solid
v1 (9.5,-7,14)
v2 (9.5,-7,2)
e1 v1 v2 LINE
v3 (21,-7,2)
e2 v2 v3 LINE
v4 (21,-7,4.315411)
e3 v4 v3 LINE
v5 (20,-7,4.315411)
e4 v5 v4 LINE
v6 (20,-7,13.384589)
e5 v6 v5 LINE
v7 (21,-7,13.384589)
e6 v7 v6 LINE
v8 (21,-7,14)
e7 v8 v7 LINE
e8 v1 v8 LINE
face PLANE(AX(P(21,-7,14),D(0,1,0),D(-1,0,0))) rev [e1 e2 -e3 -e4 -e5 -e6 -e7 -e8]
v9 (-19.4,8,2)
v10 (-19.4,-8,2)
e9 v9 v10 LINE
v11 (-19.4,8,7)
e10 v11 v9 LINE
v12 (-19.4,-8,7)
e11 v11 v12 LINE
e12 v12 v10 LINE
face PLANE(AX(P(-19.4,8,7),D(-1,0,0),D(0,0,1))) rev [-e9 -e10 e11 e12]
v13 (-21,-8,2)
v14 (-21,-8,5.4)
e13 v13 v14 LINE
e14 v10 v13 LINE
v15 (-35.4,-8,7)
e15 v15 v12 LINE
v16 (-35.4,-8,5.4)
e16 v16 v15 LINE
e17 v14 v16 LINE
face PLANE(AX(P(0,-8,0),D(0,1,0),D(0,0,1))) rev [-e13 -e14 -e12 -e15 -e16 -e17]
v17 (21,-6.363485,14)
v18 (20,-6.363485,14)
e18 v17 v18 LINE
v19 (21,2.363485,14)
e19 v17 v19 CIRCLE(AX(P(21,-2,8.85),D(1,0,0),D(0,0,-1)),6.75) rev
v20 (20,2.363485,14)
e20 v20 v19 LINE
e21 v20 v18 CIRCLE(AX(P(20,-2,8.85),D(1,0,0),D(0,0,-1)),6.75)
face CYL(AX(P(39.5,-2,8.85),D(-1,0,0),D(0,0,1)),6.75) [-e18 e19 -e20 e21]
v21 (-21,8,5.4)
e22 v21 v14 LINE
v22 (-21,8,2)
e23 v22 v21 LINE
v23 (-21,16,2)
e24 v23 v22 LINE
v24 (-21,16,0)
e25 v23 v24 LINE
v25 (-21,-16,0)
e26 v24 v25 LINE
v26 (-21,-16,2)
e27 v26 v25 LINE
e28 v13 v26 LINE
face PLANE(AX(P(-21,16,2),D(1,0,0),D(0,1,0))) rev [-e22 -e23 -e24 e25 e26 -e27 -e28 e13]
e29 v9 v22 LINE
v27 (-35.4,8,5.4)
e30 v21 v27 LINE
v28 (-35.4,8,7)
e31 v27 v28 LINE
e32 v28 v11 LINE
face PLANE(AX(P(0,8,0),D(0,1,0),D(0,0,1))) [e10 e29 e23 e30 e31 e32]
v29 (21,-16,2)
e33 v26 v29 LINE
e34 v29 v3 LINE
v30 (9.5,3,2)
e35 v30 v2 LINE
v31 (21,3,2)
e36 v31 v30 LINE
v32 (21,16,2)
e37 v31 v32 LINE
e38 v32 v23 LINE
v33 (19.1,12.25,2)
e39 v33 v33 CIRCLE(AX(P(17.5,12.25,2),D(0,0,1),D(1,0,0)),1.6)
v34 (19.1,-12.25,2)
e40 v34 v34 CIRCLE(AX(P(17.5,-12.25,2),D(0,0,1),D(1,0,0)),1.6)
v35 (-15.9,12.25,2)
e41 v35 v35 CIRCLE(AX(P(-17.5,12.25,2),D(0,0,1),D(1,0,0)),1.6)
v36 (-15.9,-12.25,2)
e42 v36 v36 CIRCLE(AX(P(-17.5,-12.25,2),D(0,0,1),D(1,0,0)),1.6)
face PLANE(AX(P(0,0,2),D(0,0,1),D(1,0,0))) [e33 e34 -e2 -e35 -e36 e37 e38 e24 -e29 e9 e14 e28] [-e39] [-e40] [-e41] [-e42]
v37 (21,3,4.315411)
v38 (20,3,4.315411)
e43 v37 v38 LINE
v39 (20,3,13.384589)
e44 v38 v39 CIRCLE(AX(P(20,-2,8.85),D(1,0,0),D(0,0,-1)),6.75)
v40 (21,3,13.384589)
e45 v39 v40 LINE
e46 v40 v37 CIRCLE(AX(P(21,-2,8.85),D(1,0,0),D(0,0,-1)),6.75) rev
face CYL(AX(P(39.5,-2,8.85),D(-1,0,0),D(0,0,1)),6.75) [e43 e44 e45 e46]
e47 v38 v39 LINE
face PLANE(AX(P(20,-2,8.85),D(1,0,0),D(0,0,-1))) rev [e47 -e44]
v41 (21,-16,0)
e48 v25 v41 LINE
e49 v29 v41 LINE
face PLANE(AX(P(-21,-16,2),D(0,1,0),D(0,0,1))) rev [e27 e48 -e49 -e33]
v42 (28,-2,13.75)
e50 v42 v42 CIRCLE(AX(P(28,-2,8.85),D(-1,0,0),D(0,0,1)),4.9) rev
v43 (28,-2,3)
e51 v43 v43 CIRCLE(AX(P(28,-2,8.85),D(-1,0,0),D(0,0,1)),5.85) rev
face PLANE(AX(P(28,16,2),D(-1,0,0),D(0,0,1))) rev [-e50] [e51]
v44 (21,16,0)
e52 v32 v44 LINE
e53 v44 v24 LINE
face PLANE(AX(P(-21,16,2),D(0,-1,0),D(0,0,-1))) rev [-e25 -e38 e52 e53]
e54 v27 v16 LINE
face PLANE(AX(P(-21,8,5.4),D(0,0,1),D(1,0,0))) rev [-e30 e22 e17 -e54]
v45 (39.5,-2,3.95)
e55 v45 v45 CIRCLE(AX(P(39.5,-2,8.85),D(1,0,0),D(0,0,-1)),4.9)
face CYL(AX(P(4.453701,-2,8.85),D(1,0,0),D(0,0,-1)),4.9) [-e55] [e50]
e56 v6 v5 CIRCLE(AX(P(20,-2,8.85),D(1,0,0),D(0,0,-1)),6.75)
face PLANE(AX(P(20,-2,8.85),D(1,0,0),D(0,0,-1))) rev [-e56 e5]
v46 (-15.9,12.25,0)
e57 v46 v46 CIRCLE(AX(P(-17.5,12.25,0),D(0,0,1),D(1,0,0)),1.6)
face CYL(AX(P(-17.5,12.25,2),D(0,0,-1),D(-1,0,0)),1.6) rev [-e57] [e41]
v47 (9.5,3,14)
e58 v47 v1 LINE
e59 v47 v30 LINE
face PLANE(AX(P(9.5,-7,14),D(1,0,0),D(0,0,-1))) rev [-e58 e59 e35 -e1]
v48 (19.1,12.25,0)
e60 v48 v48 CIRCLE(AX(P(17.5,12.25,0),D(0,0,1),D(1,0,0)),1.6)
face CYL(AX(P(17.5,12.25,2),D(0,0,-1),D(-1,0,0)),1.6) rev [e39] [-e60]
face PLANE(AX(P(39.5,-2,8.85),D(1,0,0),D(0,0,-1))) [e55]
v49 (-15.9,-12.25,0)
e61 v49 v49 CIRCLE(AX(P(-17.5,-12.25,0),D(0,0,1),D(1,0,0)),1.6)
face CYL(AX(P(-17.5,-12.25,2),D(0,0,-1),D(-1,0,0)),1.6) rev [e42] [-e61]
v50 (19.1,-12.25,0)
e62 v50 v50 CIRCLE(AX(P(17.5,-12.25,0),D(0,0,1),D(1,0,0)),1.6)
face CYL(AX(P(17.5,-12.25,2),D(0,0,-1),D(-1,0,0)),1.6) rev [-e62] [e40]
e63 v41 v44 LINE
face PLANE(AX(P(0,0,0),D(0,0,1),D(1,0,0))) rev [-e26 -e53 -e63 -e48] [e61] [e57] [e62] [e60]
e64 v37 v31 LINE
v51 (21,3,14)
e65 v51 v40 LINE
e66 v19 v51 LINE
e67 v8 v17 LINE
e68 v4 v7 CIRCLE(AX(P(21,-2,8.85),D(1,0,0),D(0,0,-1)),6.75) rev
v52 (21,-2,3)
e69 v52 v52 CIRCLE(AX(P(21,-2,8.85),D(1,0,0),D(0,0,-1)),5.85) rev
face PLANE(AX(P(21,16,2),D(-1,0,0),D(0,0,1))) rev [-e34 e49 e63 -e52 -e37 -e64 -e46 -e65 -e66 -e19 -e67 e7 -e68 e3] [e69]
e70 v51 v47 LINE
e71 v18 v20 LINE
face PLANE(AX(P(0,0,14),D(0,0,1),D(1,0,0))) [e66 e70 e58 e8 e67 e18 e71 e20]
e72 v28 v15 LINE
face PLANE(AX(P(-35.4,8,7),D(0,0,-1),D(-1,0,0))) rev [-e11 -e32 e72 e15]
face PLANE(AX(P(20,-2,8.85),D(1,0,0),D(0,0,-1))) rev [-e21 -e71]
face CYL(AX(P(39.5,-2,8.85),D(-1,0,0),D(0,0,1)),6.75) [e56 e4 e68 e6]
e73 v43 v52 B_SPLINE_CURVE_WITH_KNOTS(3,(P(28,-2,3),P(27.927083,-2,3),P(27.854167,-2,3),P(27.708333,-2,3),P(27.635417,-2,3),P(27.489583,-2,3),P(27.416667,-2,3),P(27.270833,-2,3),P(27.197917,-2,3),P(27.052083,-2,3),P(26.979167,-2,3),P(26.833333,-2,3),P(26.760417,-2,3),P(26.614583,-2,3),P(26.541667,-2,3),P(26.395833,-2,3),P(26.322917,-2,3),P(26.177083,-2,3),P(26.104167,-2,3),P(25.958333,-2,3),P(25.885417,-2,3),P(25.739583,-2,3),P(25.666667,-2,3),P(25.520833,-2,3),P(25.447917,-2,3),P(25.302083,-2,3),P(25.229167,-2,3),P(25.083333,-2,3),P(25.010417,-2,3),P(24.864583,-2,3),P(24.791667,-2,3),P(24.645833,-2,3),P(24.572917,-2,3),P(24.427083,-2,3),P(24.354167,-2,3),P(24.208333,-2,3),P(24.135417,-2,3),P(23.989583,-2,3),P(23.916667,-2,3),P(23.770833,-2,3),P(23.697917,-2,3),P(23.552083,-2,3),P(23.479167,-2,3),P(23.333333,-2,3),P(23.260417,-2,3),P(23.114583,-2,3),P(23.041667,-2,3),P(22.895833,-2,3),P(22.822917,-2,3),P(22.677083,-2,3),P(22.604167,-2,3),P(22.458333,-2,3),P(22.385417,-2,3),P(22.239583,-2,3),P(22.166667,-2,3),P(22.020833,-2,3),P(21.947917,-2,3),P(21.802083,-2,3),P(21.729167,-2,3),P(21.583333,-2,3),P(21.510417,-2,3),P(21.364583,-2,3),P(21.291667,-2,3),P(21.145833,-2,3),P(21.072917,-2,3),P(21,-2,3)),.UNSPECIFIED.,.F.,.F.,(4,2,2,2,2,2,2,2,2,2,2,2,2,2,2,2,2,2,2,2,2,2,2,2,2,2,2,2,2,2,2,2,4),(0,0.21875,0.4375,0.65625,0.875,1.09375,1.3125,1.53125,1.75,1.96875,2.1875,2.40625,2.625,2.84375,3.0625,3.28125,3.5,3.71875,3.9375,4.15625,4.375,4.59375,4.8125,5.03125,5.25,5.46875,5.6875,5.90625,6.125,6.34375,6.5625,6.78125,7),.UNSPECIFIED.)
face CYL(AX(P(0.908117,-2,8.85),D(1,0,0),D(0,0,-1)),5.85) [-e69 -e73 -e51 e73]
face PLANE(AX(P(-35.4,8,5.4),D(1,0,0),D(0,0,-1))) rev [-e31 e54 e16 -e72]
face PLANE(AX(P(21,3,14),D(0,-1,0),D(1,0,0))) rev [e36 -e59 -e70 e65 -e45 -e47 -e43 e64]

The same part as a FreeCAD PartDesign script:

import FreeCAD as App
import Part
import Sketcher
from FreeCAD import Vector
Q = App.Units.Quantity


def add_polygon(sketch, points):
    """Adds a closed chain of lines whose ends are joined by coincident constraints."""
    first, n = sketch.GeometryCount, len(points)
    for a, b in zip(points, points[1:] + points[:1]):
        sketch.addGeometry(Part.LineSegment(App.Vector(*a, 0), App.Vector(*b, 0)), False)
    for i in range(n):
        sketch.addConstraint(Sketcher.Constraint("Coincident", first + i, 2, first + (i + 1) % n, 1))

doc = App.newDocument("Part")
body = doc.addObject("PartDesign::Body", "Body")

# Sketch on XY plane
sketch1 = body.newObject("Sketcher::SketchObject", "Sketch")
sketch1.AttachmentSupport = (doc.getObject("XY_Plane"), [""])
sketch1.MapMode = "FlatFace"
add_polygon(sketch1, [(-21, 16), (-21, -16), (21, -16), (21, 16)])  # lines 0-3
sketch1.addGeometry(Part.Circle(Vector(-17.5, -12.2, 0), Vector(0, 0, 1), 1.6), False)  # 4
sketch1.addGeometry(Part.Circle(Vector(17.5, -12.2, 0), Vector(0, 0, 1), 1.6), False)  # 5
sketch1.addGeometry(Part.Circle(Vector(-17.5, 12.2, 0), Vector(0, 0, 1), 1.6), False)  # 6
sketch1.addGeometry(Part.Circle(Vector(17.5, 12.2, 0), Vector(0, 0, 1), 1.6), False)  # 7
sketch1.addConstraint([
    Sketcher.Constraint("Vertical", 0),
    Sketcher.Constraint("Horizontal", 1),
    Sketcher.Constraint("Vertical", 2),
    Sketcher.Constraint("Horizontal", 3),
    Sketcher.Constraint("Equal", 4, 5),
    Sketcher.Constraint("Equal", 5, 6),
    Sketcher.Constraint("Equal", 6, 7),
    Sketcher.Constraint("Symmetric", 5, 3, 6, 3, -1, 1),
    Sketcher.Constraint("Symmetric", 4, 3, 7, 3, -1, 1),
    Sketcher.Constraint("Symmetric", 0, 2, 2, 2, -1, 1),
    Sketcher.Constraint("Symmetric", 4, 3, 5, 3, -2),
    Sketcher.Constraint("Diameter", 4, Q("3.2 mm")),
    Sketcher.Constraint("DistanceX", 1, 1, 1, 2, Q("42 mm")),
    Sketcher.Constraint("DistanceY", 0, 2, 0, 1, Q("32 mm")),
    Sketcher.Constraint("DistanceX", 4, 3, 5, 3, Q("35 mm")),
    Sketcher.Constraint("DistanceY", 4, 3, 6, 3, Q("24.5 mm")),
])
pad1 = body.newObject("PartDesign::Pad", "Pad")
pad1.Profile = sketch1
pad1.Length = 2

# Sketch on XY plane
sketch2 = body.newObject("Sketcher::SketchObject", "Sketch001")
sketch2.AttachmentSupport = (doc.getObject("XY_Plane"), [""])
sketch2.MapMode = "FlatFace"
sketch2.AttachmentOffset = App.Placement(Vector(0, 0, 2), App.Rotation())
add_polygon(sketch2, [(10, 3), (10, -7), (21, -7), (21, 3)])  # lines 0-3
sketch2.addConstraint([
    Sketcher.Constraint("Vertical", 0),
    Sketcher.Constraint("Horizontal", 1),
    Sketcher.Constraint("Vertical", 2),
    Sketcher.Constraint("Horizontal", 3),
    Sketcher.Constraint("DistanceY", 0, 2, 0, 1, Q("10 mm")),
    Sketcher.Constraint("DistanceX", 1, 1, 1, 2, Q("11.5 mm")),
    Sketcher.Constraint("DistanceY", 0, 2, -1, 1, Q("7 mm")),
    Sketcher.Constraint("DistanceX", -1, 1, 1, 2, Q("21 mm")),
])
pad2 = body.newObject("PartDesign::Pad", "Pad001")
pad2.Profile = sketch2
pad2.Length = 12

# Sketch on YZ plane
sketch3 = body.newObject("Sketcher::SketchObject", "Sketch002")
sketch3.AttachmentSupport = (doc.getObject("YZ_Plane"), [""])
sketch3.MapMode = "FlatFace"
sketch3.AttachmentOffset = App.Placement(Vector(0, 0, 20), App.Rotation())
sketch3.addGeometry(Part.Circle(Vector(-2, 9, 0), Vector(0, 0, 1), 7), False)
sketch3.addConstraint([
    Sketcher.Constraint("Diameter", 0, Q("13.5 mm")),
    Sketcher.Constraint("DistanceX", 0, 3, -1, 1, Q("2 mm")),
    Sketcher.Constraint("DistanceY", -1, 1, 0, 3, Q("8.85 mm")),
])
pad3 = body.newObject("PartDesign::Pad", "Pad002")
pad3.Profile = sketch3
pad3.Length = 19.5

# Sketch on YZ plane
sketch4 = body.newObject("Sketcher::SketchObject", "Sketch003")
sketch4.AttachmentSupport = (doc.getObject("YZ_Plane"), [""])
sketch4.MapMode = "FlatFace"
sketch4.AttachmentOffset = App.Placement(Vector(0, 0, 21), App.Rotation())
sketch4.addGeometry([
    Part.Circle(Vector(-2, 9, 0), Vector(0, 0, 1), 7),
    Part.Circle(Vector(-2, 9, 0), Vector(0, 0, 1), 6),
], False)
sketch4.addConstraint([
    Sketcher.Constraint("Coincident", 1, 3, 0, 3),
    Sketcher.Constraint("Diameter", 0, Q("13.5 mm")),
    Sketcher.Constraint("Diameter", 1, Q("11.7 mm")),
    Sketcher.Constraint("DistanceX", 0, 3, -1, 1, Q("2 mm")),
    Sketcher.Constraint("DistanceY", -1, 1, 0, 3, Q("8.85 mm")),
])
pocket1 = body.newObject("PartDesign::Pocket", "Pocket")
pocket1.Profile = sketch4
pocket1.Length = 18.5
pocket1.Reversed = True

# Sketch on YZ plane
sketch5 = body.newObject("Sketcher::SketchObject", "Sketch004")
sketch5.AttachmentSupport = (doc.getObject("YZ_Plane"), [""])
sketch5.MapMode = "FlatFace"
sketch5.AttachmentOffset = App.Placement(Vector(0, 0, 28), App.Rotation())
sketch5.addGeometry([
    Part.Circle(Vector(-2, 8.8, 0), Vector(0, 0, 1), 5.8),
    Part.Circle(Vector(-2, 8.8, 0), Vector(0, 0, 1), 4.9),
], False)
sketch5.addConstraint([
    Sketcher.Constraint("Coincident", 1, 3, 0, 3),
    Sketcher.Constraint("Diameter", 0, Q("11.7 mm")),
    Sketcher.Constraint("Diameter", 1, Q("9.8 mm")),
    Sketcher.Constraint("DistanceX", 0, 3, -1, 1, Q("2 mm")),
    Sketcher.Constraint("DistanceY", -1, 1, 0, 3, Q("8.85 mm")),
])
pocket2 = body.newObject("PartDesign::Pocket", "Pocket001")
pocket2.Profile = sketch5
pocket2.Length = 11.5
pocket2.Reversed = True

# Sketch on XZ plane
sketch6 = body.newObject("Sketcher::SketchObject", "Sketch005")
sketch6.AttachmentSupport = (doc.getObject("XZ_Plane"), [""])
sketch6.MapMode = "FlatFace"
add_polygon(sketch6, [(-21, 2), (-21, 5.4), (-35.4, 5.4), (-35.4, 7), (-19.4, 7), (-19.4, 2)])  # lines 0-5
sketch6.addConstraint([
    Sketcher.Constraint("Vertical", 0),
    Sketcher.Constraint("Horizontal", 1),
    Sketcher.Constraint("Vertical", 2),
    Sketcher.Constraint("Horizontal", 3),
    Sketcher.Constraint("Vertical", 4),
    Sketcher.Constraint("Horizontal", 5),
    Sketcher.Constraint("Equal", 5, 2),
    Sketcher.Constraint("DistanceX", 3, 1, 3, 2, Q("16 mm")),
    Sketcher.Constraint("DistanceY", 4, 2, 4, 1, Q("5 mm")),
    Sketcher.Constraint("DistanceX", 1, 2, 1, 1, Q("14.4 mm")),
    Sketcher.Constraint("DistanceX", 0, 2, -1, 1, Q("21 mm")),
    Sketcher.Constraint("DistanceY", -1, 1, 2, 2, Q("7 mm")),
])
pad4 = body.newObject("PartDesign::Pad", "Pad003")
pad4.Profile = sketch6
pad4.Length = 16
pad4.Midplane = True

doc.recompute()
